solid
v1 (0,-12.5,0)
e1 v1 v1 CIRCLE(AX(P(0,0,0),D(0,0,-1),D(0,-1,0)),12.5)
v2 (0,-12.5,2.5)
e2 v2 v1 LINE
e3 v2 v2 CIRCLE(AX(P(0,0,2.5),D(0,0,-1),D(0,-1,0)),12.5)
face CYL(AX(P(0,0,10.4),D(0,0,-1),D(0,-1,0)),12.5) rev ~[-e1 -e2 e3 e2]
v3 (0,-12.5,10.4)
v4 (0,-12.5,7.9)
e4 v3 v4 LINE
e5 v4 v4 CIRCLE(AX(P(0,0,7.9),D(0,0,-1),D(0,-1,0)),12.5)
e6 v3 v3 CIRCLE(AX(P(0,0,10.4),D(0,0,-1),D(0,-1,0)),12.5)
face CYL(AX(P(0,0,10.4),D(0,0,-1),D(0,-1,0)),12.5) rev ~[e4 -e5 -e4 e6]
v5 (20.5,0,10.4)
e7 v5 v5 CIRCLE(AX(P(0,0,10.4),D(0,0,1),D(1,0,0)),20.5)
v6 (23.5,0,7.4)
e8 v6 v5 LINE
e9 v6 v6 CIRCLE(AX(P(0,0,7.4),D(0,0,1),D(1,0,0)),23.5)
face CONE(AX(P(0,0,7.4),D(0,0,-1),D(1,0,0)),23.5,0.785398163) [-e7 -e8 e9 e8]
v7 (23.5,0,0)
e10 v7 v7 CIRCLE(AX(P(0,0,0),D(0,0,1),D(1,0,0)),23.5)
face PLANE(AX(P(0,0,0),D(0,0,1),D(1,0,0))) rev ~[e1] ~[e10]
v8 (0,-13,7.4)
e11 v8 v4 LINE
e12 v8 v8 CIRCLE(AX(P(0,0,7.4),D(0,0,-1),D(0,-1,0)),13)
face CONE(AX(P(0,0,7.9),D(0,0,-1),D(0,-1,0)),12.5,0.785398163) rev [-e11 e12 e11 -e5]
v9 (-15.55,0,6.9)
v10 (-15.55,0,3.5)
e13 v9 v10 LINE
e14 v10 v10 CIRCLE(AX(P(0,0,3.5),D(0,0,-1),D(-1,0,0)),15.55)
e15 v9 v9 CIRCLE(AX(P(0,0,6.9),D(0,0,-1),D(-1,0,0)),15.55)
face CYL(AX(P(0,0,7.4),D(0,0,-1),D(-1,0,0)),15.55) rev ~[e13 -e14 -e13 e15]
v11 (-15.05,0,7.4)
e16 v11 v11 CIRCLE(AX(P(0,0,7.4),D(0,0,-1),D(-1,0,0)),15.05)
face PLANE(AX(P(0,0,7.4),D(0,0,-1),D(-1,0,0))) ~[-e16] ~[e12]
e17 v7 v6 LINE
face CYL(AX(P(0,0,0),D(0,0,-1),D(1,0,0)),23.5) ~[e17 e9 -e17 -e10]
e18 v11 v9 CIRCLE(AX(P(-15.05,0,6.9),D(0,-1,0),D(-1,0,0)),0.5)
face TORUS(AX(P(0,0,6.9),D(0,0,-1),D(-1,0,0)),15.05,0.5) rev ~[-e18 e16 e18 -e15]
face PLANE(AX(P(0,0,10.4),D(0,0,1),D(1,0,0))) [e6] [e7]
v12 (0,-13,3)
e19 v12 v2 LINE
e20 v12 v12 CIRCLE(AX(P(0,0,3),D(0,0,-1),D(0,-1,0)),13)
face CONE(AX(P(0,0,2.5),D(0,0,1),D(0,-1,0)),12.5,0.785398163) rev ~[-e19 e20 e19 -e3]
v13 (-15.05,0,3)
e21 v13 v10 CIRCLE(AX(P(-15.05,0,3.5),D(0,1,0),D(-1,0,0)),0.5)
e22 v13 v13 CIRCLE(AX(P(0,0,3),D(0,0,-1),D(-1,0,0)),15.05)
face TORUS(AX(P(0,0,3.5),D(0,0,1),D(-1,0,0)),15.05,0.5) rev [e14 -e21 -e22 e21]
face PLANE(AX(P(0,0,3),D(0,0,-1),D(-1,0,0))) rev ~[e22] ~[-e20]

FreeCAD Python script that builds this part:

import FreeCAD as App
import Part
import Sketcher

V = App.Vector
Q = App.Units.Quantity


def edges_at(feature, points):
    """Names of the edges that pass closest to the given points."""
    edges = feature.Shape.Edges
    near = lambda p: min(range(len(edges)), key=lambda i: edges[i].distToShape(Part.Vertex(*p))[0])
    return sorted({f"Edge{near(p) + 1}" for p in points})


def add_polygon(sketch, points):
    """Adds a closed chain of lines whose ends are joined by coincident constraints."""
    first, n = sketch.GeometryCount, len(points)
    for a, b in zip(points, points[1:] + points[:1]):
        sketch.addGeometry(Part.LineSegment(App.Vector(*a, 0), App.Vector(*b, 0)), False)
    for i in range(n):
        sketch.addConstraint(Sketcher.Constraint("Coincident", first + i, 2, first + (i + 1) % n, 1))

doc = App.newDocument("Part")
body = doc.addObject("PartDesign::Body", "Body")

# Sketch on XY plane
sketch1 = doc.addObject("Sketcher::SketchObject", "Sketch")
body.addObject(sketch1)
sketch1.AttachmentSupport = (doc.XY_Plane, [""])
sketch1.MapMode = "FlatFace"
sketch1.addGeometry(Part.Circle(V(0, 0, 0), V(0, 0, 1), 24), False)
sketch1.addConstraint([
    Sketcher.Constraint("Coincident", 0, 3, -1, 1),
    Sketcher.Constraint("Diameter", 0, Q("47 mm")),
])
pad1 = doc.addObject("PartDesign::Pad", "Pad")
body.addObject(pad1)
pad1.Profile = sketch1
pad1.Length = 10.4
doc.recompute()

chamfer = doc.addObject("PartDesign::Chamfer", "Chamfer")
body.addObject(chamfer)
chamfer.Base = (pad1, edges_at(pad1, [(-23.5, 0, 10.4)]))
chamfer.Size = 3

# Sketch on XY plane
sketch2 = doc.addObject("Sketcher::SketchObject", "Sketch001")
body.addObject(sketch2)
sketch2.AttachmentSupport = (doc.XY_Plane, [""])
sketch2.MapMode = "FlatFace"
sketch2.AttachmentOffset = App.Placement(V(0, 0, 10.4), App.Rotation())
sketch2.addGeometry(Part.Circle(V(0, 0, 0), V(0, 0, 1), 12), False)
sketch2.addConstraint([
    Sketcher.Constraint("Coincident", 0, 3, -1, 1),
    Sketcher.Constraint("Diameter", 0, Q("25 mm")),
])
doc.recompute()
hole = doc.addObject("PartDesign::Hole", "Hole")
body.addObject(hole)
hole.Profile = sketch2
hole.ThreadType = "None"
hole.Diameter = 25
hole.DepthType = "ThroughAll"

# Sketch on XZ plane
sketch3 = doc.addObject("Sketcher::SketchObject", "Sketch002")
body.addObject(sketch3)
sketch3.AttachmentSupport = (doc.XZ_Plane, [""])
sketch3.MapMode = "FlatFace"
add_polygon(sketch3, [(-15.6, 7.4), (0, 7.4), (0, 3), (-15.6, 3)])  # lines 0-3
sketch3.addConstraint([
    Sketcher.Constraint("Horizontal", 0),
    Sketcher.Constraint("Vertical", 1),
    Sketcher.Constraint("Horizontal", 2),
    Sketcher.Constraint("Vertical", 3),
    Sketcher.Constraint("PointOnObject", 0, 2, -2),
    Sketcher.Constraint("DistanceY", 1, 2, 1, 1, Q("4.4 mm")),
    Sketcher.Constraint("DistanceY", -1, 1, 1, 2, Q("3 mm")),
    Sketcher.Constraint("DistanceX", 0, 1, 0, 2, Q("15.55 mm")),
])
groove = doc.addObject("PartDesign::Groove", "Groove")
body.addObject(groove)
groove.Profile = sketch3
groove.ReferenceAxis = (sketch3, ["V_Axis"])
groove.Angle = 360
doc.recompute()

fillet = doc.addObject("PartDesign::Fillet", "Fillet")
body.addObject(fillet)
fillet.Base = (groove, edges_at(groove, [(15.55, 0, 3), (15.55, 0, 7.4)]))
fillet.Radius = 0.5
doc.recompute()

chamfer2 = doc.addObject("PartDesign::Chamfer", "Chamfer001")
body.addObject(chamfer2)
chamfer2.Base = (fillet, edges_at(fillet, [(0, 12.5, 7.4), (0, 12.5, 3)]))
chamfer2.Size = 0.5

doc.recompute()
